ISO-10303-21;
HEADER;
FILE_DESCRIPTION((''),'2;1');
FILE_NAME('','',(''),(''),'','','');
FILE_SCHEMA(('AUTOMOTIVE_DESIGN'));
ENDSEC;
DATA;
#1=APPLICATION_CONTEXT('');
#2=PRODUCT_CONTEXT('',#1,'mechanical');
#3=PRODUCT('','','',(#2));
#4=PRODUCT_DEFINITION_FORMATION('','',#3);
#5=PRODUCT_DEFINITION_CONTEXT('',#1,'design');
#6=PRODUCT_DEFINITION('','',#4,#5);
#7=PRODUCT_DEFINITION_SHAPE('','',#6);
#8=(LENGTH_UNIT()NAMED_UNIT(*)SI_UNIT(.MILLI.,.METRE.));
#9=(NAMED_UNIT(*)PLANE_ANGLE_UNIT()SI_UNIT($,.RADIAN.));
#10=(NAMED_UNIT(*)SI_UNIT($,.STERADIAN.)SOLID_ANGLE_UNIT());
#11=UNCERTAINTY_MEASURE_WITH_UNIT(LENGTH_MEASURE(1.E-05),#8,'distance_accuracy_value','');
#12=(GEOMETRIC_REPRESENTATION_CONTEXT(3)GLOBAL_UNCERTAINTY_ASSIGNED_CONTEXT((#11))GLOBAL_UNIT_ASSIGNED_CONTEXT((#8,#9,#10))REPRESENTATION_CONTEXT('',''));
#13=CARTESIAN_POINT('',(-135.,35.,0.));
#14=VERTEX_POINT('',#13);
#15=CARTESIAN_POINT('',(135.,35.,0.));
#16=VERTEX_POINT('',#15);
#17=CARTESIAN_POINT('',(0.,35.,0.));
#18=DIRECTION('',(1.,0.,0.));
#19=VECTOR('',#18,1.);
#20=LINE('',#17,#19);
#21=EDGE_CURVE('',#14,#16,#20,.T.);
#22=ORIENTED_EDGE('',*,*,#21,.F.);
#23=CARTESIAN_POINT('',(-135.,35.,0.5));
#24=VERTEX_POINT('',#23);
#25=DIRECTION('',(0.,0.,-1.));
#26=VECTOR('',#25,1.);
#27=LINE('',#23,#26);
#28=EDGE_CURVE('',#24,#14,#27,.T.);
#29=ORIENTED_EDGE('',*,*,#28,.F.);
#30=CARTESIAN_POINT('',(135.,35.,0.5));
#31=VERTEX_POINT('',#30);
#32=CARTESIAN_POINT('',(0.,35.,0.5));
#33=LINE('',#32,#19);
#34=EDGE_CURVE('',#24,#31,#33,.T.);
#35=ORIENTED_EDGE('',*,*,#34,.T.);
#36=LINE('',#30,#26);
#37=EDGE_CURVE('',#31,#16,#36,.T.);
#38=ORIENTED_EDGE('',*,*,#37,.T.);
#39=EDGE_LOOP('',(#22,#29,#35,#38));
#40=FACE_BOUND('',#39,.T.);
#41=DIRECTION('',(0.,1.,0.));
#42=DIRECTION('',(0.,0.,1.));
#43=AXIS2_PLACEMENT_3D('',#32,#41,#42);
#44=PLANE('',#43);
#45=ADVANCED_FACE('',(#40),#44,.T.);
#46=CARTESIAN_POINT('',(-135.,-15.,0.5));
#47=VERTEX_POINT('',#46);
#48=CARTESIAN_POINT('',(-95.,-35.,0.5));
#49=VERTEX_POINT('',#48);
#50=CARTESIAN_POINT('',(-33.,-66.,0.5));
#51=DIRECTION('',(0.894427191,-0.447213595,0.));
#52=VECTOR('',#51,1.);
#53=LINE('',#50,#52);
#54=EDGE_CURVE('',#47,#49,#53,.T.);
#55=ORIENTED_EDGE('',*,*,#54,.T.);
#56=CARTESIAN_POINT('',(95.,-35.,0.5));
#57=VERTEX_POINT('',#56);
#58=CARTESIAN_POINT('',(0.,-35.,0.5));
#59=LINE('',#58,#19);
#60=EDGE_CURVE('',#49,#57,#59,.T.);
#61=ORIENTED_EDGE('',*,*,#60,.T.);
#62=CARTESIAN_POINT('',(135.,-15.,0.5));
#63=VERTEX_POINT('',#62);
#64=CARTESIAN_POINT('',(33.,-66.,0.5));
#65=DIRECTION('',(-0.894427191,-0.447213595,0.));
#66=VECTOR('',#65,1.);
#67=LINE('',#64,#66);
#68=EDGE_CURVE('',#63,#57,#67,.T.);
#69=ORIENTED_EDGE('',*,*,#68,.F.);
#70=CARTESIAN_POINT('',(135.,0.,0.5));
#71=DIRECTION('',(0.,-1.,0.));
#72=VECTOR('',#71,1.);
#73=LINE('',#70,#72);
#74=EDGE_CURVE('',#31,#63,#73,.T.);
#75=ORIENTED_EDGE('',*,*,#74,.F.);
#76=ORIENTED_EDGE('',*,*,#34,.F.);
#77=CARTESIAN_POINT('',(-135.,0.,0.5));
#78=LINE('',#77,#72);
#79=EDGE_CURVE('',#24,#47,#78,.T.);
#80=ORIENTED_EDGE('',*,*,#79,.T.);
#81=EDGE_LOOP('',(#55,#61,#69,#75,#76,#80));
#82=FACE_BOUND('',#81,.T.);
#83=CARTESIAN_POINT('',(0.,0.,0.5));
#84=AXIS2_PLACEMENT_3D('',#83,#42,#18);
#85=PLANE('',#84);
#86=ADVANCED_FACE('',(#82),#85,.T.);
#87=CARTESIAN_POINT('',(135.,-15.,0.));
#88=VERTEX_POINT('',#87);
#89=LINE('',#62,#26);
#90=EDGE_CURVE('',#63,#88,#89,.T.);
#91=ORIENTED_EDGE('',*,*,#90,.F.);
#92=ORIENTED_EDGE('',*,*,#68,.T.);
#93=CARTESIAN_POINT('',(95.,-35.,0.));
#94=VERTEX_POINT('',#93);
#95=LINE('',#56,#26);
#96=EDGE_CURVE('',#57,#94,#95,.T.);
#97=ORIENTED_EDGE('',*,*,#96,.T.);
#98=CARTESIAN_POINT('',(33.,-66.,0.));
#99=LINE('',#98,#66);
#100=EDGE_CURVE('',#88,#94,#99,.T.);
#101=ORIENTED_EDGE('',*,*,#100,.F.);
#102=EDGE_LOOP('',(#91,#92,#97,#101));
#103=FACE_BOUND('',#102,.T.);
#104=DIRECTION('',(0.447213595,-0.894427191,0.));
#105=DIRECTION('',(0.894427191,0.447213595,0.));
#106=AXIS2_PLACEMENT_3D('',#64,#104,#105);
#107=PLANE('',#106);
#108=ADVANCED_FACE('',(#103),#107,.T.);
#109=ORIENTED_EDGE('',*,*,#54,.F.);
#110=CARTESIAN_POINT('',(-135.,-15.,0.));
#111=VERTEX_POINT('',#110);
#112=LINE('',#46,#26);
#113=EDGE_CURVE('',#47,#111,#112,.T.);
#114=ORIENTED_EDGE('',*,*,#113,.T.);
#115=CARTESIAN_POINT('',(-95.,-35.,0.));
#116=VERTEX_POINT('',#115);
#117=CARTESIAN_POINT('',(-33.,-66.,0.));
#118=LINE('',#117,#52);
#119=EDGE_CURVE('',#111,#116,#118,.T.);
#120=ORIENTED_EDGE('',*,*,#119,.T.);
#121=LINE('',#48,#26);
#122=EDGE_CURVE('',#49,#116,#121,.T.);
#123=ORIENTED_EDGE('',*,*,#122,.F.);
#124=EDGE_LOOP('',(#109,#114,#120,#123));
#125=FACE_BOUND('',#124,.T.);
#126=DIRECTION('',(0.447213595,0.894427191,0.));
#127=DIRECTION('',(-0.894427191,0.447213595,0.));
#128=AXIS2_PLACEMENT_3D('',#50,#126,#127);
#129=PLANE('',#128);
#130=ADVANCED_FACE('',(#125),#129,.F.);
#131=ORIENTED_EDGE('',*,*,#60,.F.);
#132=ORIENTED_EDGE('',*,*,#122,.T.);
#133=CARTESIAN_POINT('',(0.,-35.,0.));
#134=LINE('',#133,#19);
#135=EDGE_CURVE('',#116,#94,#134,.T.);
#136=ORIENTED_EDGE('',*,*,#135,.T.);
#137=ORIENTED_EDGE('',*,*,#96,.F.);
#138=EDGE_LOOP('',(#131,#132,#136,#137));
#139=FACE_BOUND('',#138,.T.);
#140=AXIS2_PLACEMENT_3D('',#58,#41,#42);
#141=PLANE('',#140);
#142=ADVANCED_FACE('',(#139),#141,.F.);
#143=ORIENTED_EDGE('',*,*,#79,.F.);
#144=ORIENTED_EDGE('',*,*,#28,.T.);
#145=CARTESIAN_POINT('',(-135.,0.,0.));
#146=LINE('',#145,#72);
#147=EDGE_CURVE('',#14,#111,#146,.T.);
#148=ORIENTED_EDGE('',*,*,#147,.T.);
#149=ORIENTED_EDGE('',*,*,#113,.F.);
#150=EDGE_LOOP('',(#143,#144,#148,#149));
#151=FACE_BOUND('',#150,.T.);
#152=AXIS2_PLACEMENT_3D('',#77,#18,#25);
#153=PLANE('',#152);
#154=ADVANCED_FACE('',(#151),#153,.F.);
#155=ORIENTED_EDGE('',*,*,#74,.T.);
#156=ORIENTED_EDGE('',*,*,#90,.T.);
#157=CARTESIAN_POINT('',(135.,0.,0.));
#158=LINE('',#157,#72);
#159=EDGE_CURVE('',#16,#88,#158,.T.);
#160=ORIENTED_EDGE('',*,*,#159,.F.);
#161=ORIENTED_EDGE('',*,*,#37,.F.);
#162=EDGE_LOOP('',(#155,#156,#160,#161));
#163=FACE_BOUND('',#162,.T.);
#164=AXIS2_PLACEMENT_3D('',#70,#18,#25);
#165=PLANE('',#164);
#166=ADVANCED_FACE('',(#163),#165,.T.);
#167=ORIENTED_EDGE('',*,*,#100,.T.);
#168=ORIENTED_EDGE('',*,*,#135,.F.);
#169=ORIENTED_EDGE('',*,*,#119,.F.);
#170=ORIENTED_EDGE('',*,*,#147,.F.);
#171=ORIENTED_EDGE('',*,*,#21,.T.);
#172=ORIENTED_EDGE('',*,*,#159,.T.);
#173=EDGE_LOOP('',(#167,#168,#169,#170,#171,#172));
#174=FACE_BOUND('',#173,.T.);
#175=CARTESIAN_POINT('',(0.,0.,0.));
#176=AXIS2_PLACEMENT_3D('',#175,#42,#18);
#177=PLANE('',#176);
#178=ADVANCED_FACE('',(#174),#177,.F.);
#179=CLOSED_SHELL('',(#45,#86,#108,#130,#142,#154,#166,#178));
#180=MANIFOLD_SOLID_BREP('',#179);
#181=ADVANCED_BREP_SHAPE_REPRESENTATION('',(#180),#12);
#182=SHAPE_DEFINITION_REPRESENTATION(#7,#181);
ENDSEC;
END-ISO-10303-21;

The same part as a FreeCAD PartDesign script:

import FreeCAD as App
import Part
import Sketcher

V = App.Vector
Q = App.Units.Quantity

doc = App.newDocument("Part")
body = doc.addObject("PartDesign::Body", "Body")

# Sketch on XY plane
sketch1 = body.newObject("Sketcher::SketchObject", "Sketch")
sketch1.AttachmentSupport = (doc.getObject("XY_Plane"), [""])
sketch1.MapMode = "FlatFace"
sketch1.addGeometry([
    Part.LineSegment(V(135, 35, 0), V(-135, 35, 0)),  # 0
    Part.LineSegment(V(-135, 35, 0), V(-135, -15, 0)),  # 1
    Part.LineSegment(V(-135, -15, 0), V(-95, -35, 0)),  # 2
    Part.LineSegment(V(-95, -35, 0), V(95, -35, 0)),  # 3
    Part.LineSegment(V(95, -35, 0), V(135, -15, 0)),  # 4
    Part.LineSegment(V(135, -15, 0), V(135, 35, 0)),  # 5
], False)
sketch1.addConstraint([
    Sketcher.Constraint("Coincident", 0, 2, 1, 1),
    Sketcher.Constraint("Coincident", 1, 2, 2, 1),
    Sketcher.Constraint("Coincident", 2, 2, 3, 1),
    Sketcher.Constraint("Coincident", 3, 2, 4, 1),
    Sketcher.Constraint("Coincident", 4, 2, 5, 1),
    Sketcher.Constraint("Coincident", 5, 2, 0, 1),
    Sketcher.Constraint("Horizontal", 0),
    Sketcher.Constraint("Vertical", 1),
    Sketcher.Constraint("Horizontal", 3),
    Sketcher.Constraint("Vertical", 5),
    Sketcher.Constraint("Symmetric", 1, 2, 4, 2, -2),
    Sketcher.Constraint("Equal", 2, 4),
    Sketcher.Constraint("DistanceX", 0, 2, 0, 1, Q("270 mm")),
    Sketcher.Constraint("DistanceX", 3, 1, 3, 2, Q("190 mm")),
    Sketcher.Constraint("DistanceY", 1, 2, 1, 1, Q("50 mm")),
    Sketcher.Constraint("DistanceY", -1, 1, 0, 2, Q("35 mm")),
    Sketcher.Constraint("DistanceY", 2, 2, -1, 1, Q("35 mm")),
])
pad1 = body.newObject("PartDesign::Pad", "Pad")
pad1.Profile = sketch1
pad1.Length = 0.5

doc.recompute()
